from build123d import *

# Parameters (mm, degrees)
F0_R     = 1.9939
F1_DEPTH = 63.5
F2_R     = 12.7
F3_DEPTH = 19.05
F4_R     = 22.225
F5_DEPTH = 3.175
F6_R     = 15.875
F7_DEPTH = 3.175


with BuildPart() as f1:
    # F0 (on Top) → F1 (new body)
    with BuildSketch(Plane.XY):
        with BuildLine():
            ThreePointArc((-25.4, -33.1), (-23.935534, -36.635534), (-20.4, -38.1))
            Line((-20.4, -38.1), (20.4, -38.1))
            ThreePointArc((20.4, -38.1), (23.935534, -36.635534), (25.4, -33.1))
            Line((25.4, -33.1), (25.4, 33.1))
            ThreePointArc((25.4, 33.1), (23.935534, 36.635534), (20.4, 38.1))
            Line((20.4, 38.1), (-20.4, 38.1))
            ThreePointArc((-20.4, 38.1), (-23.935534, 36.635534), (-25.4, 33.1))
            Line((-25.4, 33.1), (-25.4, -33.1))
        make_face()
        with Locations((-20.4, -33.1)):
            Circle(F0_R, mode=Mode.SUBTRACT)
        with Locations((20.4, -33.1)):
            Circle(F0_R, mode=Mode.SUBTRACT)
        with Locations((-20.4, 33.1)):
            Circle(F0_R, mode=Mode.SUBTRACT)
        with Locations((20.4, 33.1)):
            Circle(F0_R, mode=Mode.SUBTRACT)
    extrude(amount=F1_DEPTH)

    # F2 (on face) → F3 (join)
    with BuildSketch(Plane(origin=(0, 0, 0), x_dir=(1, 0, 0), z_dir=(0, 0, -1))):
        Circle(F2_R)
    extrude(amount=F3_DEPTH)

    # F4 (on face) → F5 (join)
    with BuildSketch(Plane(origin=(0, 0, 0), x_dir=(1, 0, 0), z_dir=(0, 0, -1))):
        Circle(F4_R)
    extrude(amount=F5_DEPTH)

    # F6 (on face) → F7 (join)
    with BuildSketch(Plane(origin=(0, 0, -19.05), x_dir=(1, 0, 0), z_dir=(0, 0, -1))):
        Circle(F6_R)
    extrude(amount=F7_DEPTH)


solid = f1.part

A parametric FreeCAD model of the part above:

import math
import FreeCAD as App
import Part
import Sketcher
from FreeCAD import Vector
Q = App.Units.Quantity

doc = App.newDocument("Part")
body = doc.addObject("PartDesign::Body", "Body")

sketch1 = body.newObject("Sketcher::SketchObject", "Sketch")
sketch1.AttachmentSupport = (doc.getObject("XY_Plane"), [""])
sketch1.MapMode = "FlatFace"
sketch1.addGeometry([
    Part.ArcOfCircle(Part.Circle(Vector(-20.4, -33.1, 0), Vector(0, 0, 1), 5), math.radians(179.999996), math.radians(270.000004)),
    Part.LineSegment(Vector(-20.4, -38.1, 0), Vector(20.4, -38.1, 0)),
    Part.ArcOfCircle(Part.Circle(Vector(20.4, -33.1, 0), Vector(0, 0, 1), 5), math.radians(-90.000004), math.radians(0.000004)),
    Part.LineSegment(Vector(25.4, -33.1, 0), Vector(25.4, 33.1, 0)),
    Part.ArcOfCircle(Part.Circle(Vector(20.4, 33.1, 0), Vector(0, 0, 1), 5), math.radians(-0.000004), math.radians(90.000004)),
    Part.LineSegment(Vector(20.4, 38.1, 0), Vector(-20.4, 38.1, 0)),
    Part.ArcOfCircle(Part.Circle(Vector(-20.4, 33.1, 0), Vector(0, 0, 1), 5), math.radians(89.999996), math.radians(180.000004)),
    Part.LineSegment(Vector(-25.4, 33.1, 0), Vector(-25.4, -33.1, 0)),
    Part.Circle(Vector(-20.4, -33.1, 0), Vector(0, 0, 1), 1.9939),
    Part.Circle(Vector(20.4, -33.1, 0), Vector(0, 0, 1), 1.9939),
    Part.Circle(Vector(-20.4, 33.1, 0), Vector(0, 0, 1), 1.9939),
    Part.Circle(Vector(20.4, 33.1, 0), Vector(0, 0, 1), 1.9939),
], False)
sketch1.addConstraint([
    Sketcher.Constraint("Tangent", 0, 2, 1, 1),
    Sketcher.Constraint("Tangent", 1, 2, 2, 1),
    Sketcher.Constraint("Tangent", 2, 2, 3, 1),
    Sketcher.Constraint("Tangent", 3, 2, 4, 1),
    Sketcher.Constraint("Tangent", 4, 2, 5, 1),
    Sketcher.Constraint("Tangent", 5, 2, 6, 1),
    Sketcher.Constraint("Tangent", 6, 2, 7, 1),
    Sketcher.Constraint("Tangent", 7, 2, 0, 1),
    Sketcher.Constraint("Horizontal", 1),
    Sketcher.Constraint("Vertical", 3),
    Sketcher.Constraint("Horizontal", 5),
    Sketcher.Constraint("Vertical", 7),
    Sketcher.Constraint("Coincident", 8, 3, 0, 3),
    Sketcher.Constraint("Coincident", 9, 3, 2, 3),
    Sketcher.Constraint("Coincident", 10, 3, 6, 3),
    Sketcher.Constraint("Coincident", 11, 3, 4, 3),
    Sketcher.Constraint("Equal", 0, 2),
    Sketcher.Constraint("Equal", 2, 4),
    Sketcher.Constraint("Equal", 4, 6),
    Sketcher.Constraint("Equal", 8, 9),
    Sketcher.Constraint("Equal", 9, 10),
    Sketcher.Constraint("Equal", 10, 11),
    Sketcher.Constraint("Symmetric", 0, 3, 4, 3, -1, 1),
    Sketcher.Constraint("Diameter", 8, Q("0.157 in")),
    Sketcher.Constraint("DistanceX", -1, 1, 2, 2, Q("1 in")),
    Sketcher.Constraint("DistanceY", 0, 2, -1, 1, Q("1.5 in")),
    Sketcher.Constraint("Radius", 0, Q("5 mm")),
])
pad1 = body.newObject("PartDesign::Pad", "Pad")
pad1.Profile = sketch1
pad1.Length = Q("2.5 in")

sketch2 = body.newObject("Sketcher::SketchObject", "Sketch001")
sketch2.AttachmentSupport = (doc.getObject("XY_Plane"), [""])
sketch2.MapMode = "FlatFace"
sketch2.addGeometry(Part.Circle(Vector(0, 0, 0), Vector(0, 0, 1), 12.7), False)
sketch2.addConstraint([
    Sketcher.Constraint("Coincident", 0, 3, -1, 1),
    Sketcher.Constraint("Diameter", 0, Q("1 in")),
])
pad2 = body.newObject("PartDesign::Pad", "Pad001")
pad2.Profile = sketch2
pad2.Length = Q("0.75 in")
pad2.Reversed = True

sketch3 = body.newObject("Sketcher::SketchObject", "Sketch002")
sketch3.AttachmentSupport = (doc.getObject("XY_Plane"), [""])
sketch3.MapMode = "FlatFace"
sketch3.addGeometry(Part.Circle(Vector(0, 0, 0), Vector(0, 0, 1), 22.225), False)
sketch3.addConstraint([
    Sketcher.Constraint("Coincident", 0, 3, -1, 1),
    Sketcher.Constraint("Diameter", 0, Q("1.75 in")),
])
pad3 = body.newObject("PartDesign::Pad", "Pad002")
pad3.Profile = sketch3
pad3.Length = Q("0.125 in")
pad3.Reversed = True

sketch4 = body.newObject("Sketcher::SketchObject", "Sketch003")
sketch4.AttachmentSupport = (doc.getObject("XY_Plane"), [""])
sketch4.MapMode = "FlatFace"
sketch4.AttachmentOffset = App.Placement(Vector(0, 0, -0.75 * 25.4), App.Rotation())
sketch4.addGeometry(Part.Circle(Vector(0, 0, 0), Vector(0, 0, 1), 15.875), False)
sketch4.addConstraint([
    Sketcher.Constraint("Coincident", 0, 3, -1, 1),
    Sketcher.Constraint("Diameter", 0, Q("1.25 in")),
])
pad4 = body.newObject("PartDesign::Pad", "Pad003")
pad4.Profile = sketch4
pad4.Length = Q("0.125 in")
pad4.Reversed = True

doc.recompute()
